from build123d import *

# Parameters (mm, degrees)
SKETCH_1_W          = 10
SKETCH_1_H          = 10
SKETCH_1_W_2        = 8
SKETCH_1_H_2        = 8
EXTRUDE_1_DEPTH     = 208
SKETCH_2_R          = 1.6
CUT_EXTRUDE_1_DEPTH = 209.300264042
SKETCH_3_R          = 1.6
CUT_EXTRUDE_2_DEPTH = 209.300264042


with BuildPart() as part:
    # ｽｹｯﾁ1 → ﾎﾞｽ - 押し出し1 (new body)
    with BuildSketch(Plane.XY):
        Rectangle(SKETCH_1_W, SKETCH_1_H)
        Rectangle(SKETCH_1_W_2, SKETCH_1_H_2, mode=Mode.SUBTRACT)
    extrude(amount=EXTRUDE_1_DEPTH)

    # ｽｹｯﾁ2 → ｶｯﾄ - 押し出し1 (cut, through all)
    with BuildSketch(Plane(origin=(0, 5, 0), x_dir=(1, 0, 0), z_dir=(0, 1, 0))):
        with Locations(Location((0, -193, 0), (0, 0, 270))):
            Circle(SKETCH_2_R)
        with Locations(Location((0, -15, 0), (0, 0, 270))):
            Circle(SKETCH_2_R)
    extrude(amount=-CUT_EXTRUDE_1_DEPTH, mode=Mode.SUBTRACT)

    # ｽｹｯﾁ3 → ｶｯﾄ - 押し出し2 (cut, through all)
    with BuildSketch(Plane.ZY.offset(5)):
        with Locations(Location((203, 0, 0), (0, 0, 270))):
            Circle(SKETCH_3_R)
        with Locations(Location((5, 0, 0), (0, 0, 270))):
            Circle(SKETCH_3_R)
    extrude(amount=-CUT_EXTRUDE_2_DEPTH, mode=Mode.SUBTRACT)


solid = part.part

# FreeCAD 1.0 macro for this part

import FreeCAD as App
import Part
import Sketcher
from FreeCAD import Vector
Q = App.Units.Quantity


def add_polygon(sketch, points):
    """Adds a closed chain of lines whose ends are joined by coincident constraints."""
    first, n = sketch.GeometryCount, len(points)
    for a, b in zip(points, points[1:] + points[:1]):
        sketch.addGeometry(Part.LineSegment(App.Vector(*a, 0), App.Vector(*b, 0)), False)
    for i in range(n):
        sketch.addConstraint(Sketcher.Constraint("Coincident", first + i, 2, first + (i + 1) % n, 1))

doc = App.newDocument("Part")
body = doc.addObject("PartDesign::Body", "Body")

sketch1 = doc.addObject("Sketcher::SketchObject", "Sketch")
body.addObject(sketch1)
sketch1.AttachmentSupport = (doc.XY_Plane, [""])
sketch1.MapMode = "FlatFace"
add_polygon(sketch1, [(-5, 5), (-5, -5), (5, -5), (5, 5)])
add_polygon(sketch1, [(4, -4), (-4, -4), (-4, 4), (4, 4)])
sketch1.addConstraint([
    Sketcher.Constraint("Vertical", 0),
    Sketcher.Constraint("Horizontal", 1),
    Sketcher.Constraint("Vertical", 2),
    Sketcher.Constraint("Horizontal", 3),
    Sketcher.Constraint("Horizontal", 4),
    Sketcher.Constraint("Vertical", 5),
    Sketcher.Constraint("Horizontal", 6),
    Sketcher.Constraint("Vertical", 7),
    Sketcher.Constraint("Symmetric", 0, 2, 2, 2, -1, 1),
    Sketcher.Constraint("Symmetric", 4, 2, 6, 2, -1, 1),
    Sketcher.Constraint("Equal", 3, 0),
    Sketcher.Constraint("Equal", 6, 5),
    Sketcher.Constraint("DistanceX", 1, 1, 1, 2, Q("10 mm")),
    Sketcher.Constraint("DistanceX", 4, 2, 4, 1, Q("8 mm")),
])
pad1 = doc.addObject("PartDesign::Pad", "Pad")
body.addObject(pad1)
pad1.Profile = sketch1
pad1.Length = 208

sketch2 = doc.addObject("Sketcher::SketchObject", "Sketch001")
body.addObject(sketch2)
sketch2.AttachmentSupport = (doc.XZ_Plane, [""])
sketch2.MapMode = "FlatFace"
sketch2.AttachmentOffset = App.Placement(Vector(0, 0, -5), App.Rotation())
sketch2.addGeometry([
    Part.Circle(Vector(0, 193, 0), Vector(0, 0, 1), 1.6),
    Part.Circle(Vector(0, 15, 0), Vector(0, 0, 1), 1.6),
], False)
sketch2.addConstraint([
    Sketcher.Constraint("Equal", 0, 1),
    Sketcher.Constraint("PointOnObject", 0, 3, -2),
    Sketcher.Constraint("PointOnObject", 1, 3, -2),
    Sketcher.Constraint("Diameter", 0, Q("3.2 mm")),
    Sketcher.Constraint("DistanceY", -1, 1, 0, 3, Q("193 mm")),
    Sketcher.Constraint("DistanceY", -1, 1, 1, 3, Q("15 mm")),
])
pocket1 = doc.addObject("PartDesign::Pocket", "Pocket")
body.addObject(pocket1)
pocket1.Profile = sketch2
pocket1.Type = "ThroughAll"
pocket1.Reversed = True

sketch3 = doc.addObject("Sketcher::SketchObject", "Sketch002")
body.addObject(sketch3)
sketch3.AttachmentSupport = (doc.YZ_Plane, [""])
sketch3.MapMode = "FlatFace"
sketch3.AttachmentOffset = App.Placement(Vector(0, 0, -5), App.Rotation())
sketch3.addGeometry([
    Part.Circle(Vector(0, 203, 0), Vector(0, 0, 1), 1.6),
    Part.Circle(Vector(0, 5, 0), Vector(0, 0, 1), 1.6),
], False)
sketch3.addConstraint([
    Sketcher.Constraint("Equal", 0, 1),
    Sketcher.Constraint("PointOnObject", 0, 3, -2),
    Sketcher.Constraint("PointOnObject", 1, 3, -2),
    Sketcher.Constraint("Diameter", 0, Q("3.2 mm")),
    Sketcher.Constraint("DistanceY", -1, 1, 0, 3, Q("203 mm")),
    Sketcher.Constraint("DistanceY", -1, 1, 1, 3, Q("5 mm")),
])
pocket2 = doc.addObject("PartDesign::Pocket", "Pocket001")
body.addObject(pocket2)
pocket2.Profile = sketch3
pocket2.Type = "ThroughAll"
pocket2.Reversed = True

doc.recompute()
